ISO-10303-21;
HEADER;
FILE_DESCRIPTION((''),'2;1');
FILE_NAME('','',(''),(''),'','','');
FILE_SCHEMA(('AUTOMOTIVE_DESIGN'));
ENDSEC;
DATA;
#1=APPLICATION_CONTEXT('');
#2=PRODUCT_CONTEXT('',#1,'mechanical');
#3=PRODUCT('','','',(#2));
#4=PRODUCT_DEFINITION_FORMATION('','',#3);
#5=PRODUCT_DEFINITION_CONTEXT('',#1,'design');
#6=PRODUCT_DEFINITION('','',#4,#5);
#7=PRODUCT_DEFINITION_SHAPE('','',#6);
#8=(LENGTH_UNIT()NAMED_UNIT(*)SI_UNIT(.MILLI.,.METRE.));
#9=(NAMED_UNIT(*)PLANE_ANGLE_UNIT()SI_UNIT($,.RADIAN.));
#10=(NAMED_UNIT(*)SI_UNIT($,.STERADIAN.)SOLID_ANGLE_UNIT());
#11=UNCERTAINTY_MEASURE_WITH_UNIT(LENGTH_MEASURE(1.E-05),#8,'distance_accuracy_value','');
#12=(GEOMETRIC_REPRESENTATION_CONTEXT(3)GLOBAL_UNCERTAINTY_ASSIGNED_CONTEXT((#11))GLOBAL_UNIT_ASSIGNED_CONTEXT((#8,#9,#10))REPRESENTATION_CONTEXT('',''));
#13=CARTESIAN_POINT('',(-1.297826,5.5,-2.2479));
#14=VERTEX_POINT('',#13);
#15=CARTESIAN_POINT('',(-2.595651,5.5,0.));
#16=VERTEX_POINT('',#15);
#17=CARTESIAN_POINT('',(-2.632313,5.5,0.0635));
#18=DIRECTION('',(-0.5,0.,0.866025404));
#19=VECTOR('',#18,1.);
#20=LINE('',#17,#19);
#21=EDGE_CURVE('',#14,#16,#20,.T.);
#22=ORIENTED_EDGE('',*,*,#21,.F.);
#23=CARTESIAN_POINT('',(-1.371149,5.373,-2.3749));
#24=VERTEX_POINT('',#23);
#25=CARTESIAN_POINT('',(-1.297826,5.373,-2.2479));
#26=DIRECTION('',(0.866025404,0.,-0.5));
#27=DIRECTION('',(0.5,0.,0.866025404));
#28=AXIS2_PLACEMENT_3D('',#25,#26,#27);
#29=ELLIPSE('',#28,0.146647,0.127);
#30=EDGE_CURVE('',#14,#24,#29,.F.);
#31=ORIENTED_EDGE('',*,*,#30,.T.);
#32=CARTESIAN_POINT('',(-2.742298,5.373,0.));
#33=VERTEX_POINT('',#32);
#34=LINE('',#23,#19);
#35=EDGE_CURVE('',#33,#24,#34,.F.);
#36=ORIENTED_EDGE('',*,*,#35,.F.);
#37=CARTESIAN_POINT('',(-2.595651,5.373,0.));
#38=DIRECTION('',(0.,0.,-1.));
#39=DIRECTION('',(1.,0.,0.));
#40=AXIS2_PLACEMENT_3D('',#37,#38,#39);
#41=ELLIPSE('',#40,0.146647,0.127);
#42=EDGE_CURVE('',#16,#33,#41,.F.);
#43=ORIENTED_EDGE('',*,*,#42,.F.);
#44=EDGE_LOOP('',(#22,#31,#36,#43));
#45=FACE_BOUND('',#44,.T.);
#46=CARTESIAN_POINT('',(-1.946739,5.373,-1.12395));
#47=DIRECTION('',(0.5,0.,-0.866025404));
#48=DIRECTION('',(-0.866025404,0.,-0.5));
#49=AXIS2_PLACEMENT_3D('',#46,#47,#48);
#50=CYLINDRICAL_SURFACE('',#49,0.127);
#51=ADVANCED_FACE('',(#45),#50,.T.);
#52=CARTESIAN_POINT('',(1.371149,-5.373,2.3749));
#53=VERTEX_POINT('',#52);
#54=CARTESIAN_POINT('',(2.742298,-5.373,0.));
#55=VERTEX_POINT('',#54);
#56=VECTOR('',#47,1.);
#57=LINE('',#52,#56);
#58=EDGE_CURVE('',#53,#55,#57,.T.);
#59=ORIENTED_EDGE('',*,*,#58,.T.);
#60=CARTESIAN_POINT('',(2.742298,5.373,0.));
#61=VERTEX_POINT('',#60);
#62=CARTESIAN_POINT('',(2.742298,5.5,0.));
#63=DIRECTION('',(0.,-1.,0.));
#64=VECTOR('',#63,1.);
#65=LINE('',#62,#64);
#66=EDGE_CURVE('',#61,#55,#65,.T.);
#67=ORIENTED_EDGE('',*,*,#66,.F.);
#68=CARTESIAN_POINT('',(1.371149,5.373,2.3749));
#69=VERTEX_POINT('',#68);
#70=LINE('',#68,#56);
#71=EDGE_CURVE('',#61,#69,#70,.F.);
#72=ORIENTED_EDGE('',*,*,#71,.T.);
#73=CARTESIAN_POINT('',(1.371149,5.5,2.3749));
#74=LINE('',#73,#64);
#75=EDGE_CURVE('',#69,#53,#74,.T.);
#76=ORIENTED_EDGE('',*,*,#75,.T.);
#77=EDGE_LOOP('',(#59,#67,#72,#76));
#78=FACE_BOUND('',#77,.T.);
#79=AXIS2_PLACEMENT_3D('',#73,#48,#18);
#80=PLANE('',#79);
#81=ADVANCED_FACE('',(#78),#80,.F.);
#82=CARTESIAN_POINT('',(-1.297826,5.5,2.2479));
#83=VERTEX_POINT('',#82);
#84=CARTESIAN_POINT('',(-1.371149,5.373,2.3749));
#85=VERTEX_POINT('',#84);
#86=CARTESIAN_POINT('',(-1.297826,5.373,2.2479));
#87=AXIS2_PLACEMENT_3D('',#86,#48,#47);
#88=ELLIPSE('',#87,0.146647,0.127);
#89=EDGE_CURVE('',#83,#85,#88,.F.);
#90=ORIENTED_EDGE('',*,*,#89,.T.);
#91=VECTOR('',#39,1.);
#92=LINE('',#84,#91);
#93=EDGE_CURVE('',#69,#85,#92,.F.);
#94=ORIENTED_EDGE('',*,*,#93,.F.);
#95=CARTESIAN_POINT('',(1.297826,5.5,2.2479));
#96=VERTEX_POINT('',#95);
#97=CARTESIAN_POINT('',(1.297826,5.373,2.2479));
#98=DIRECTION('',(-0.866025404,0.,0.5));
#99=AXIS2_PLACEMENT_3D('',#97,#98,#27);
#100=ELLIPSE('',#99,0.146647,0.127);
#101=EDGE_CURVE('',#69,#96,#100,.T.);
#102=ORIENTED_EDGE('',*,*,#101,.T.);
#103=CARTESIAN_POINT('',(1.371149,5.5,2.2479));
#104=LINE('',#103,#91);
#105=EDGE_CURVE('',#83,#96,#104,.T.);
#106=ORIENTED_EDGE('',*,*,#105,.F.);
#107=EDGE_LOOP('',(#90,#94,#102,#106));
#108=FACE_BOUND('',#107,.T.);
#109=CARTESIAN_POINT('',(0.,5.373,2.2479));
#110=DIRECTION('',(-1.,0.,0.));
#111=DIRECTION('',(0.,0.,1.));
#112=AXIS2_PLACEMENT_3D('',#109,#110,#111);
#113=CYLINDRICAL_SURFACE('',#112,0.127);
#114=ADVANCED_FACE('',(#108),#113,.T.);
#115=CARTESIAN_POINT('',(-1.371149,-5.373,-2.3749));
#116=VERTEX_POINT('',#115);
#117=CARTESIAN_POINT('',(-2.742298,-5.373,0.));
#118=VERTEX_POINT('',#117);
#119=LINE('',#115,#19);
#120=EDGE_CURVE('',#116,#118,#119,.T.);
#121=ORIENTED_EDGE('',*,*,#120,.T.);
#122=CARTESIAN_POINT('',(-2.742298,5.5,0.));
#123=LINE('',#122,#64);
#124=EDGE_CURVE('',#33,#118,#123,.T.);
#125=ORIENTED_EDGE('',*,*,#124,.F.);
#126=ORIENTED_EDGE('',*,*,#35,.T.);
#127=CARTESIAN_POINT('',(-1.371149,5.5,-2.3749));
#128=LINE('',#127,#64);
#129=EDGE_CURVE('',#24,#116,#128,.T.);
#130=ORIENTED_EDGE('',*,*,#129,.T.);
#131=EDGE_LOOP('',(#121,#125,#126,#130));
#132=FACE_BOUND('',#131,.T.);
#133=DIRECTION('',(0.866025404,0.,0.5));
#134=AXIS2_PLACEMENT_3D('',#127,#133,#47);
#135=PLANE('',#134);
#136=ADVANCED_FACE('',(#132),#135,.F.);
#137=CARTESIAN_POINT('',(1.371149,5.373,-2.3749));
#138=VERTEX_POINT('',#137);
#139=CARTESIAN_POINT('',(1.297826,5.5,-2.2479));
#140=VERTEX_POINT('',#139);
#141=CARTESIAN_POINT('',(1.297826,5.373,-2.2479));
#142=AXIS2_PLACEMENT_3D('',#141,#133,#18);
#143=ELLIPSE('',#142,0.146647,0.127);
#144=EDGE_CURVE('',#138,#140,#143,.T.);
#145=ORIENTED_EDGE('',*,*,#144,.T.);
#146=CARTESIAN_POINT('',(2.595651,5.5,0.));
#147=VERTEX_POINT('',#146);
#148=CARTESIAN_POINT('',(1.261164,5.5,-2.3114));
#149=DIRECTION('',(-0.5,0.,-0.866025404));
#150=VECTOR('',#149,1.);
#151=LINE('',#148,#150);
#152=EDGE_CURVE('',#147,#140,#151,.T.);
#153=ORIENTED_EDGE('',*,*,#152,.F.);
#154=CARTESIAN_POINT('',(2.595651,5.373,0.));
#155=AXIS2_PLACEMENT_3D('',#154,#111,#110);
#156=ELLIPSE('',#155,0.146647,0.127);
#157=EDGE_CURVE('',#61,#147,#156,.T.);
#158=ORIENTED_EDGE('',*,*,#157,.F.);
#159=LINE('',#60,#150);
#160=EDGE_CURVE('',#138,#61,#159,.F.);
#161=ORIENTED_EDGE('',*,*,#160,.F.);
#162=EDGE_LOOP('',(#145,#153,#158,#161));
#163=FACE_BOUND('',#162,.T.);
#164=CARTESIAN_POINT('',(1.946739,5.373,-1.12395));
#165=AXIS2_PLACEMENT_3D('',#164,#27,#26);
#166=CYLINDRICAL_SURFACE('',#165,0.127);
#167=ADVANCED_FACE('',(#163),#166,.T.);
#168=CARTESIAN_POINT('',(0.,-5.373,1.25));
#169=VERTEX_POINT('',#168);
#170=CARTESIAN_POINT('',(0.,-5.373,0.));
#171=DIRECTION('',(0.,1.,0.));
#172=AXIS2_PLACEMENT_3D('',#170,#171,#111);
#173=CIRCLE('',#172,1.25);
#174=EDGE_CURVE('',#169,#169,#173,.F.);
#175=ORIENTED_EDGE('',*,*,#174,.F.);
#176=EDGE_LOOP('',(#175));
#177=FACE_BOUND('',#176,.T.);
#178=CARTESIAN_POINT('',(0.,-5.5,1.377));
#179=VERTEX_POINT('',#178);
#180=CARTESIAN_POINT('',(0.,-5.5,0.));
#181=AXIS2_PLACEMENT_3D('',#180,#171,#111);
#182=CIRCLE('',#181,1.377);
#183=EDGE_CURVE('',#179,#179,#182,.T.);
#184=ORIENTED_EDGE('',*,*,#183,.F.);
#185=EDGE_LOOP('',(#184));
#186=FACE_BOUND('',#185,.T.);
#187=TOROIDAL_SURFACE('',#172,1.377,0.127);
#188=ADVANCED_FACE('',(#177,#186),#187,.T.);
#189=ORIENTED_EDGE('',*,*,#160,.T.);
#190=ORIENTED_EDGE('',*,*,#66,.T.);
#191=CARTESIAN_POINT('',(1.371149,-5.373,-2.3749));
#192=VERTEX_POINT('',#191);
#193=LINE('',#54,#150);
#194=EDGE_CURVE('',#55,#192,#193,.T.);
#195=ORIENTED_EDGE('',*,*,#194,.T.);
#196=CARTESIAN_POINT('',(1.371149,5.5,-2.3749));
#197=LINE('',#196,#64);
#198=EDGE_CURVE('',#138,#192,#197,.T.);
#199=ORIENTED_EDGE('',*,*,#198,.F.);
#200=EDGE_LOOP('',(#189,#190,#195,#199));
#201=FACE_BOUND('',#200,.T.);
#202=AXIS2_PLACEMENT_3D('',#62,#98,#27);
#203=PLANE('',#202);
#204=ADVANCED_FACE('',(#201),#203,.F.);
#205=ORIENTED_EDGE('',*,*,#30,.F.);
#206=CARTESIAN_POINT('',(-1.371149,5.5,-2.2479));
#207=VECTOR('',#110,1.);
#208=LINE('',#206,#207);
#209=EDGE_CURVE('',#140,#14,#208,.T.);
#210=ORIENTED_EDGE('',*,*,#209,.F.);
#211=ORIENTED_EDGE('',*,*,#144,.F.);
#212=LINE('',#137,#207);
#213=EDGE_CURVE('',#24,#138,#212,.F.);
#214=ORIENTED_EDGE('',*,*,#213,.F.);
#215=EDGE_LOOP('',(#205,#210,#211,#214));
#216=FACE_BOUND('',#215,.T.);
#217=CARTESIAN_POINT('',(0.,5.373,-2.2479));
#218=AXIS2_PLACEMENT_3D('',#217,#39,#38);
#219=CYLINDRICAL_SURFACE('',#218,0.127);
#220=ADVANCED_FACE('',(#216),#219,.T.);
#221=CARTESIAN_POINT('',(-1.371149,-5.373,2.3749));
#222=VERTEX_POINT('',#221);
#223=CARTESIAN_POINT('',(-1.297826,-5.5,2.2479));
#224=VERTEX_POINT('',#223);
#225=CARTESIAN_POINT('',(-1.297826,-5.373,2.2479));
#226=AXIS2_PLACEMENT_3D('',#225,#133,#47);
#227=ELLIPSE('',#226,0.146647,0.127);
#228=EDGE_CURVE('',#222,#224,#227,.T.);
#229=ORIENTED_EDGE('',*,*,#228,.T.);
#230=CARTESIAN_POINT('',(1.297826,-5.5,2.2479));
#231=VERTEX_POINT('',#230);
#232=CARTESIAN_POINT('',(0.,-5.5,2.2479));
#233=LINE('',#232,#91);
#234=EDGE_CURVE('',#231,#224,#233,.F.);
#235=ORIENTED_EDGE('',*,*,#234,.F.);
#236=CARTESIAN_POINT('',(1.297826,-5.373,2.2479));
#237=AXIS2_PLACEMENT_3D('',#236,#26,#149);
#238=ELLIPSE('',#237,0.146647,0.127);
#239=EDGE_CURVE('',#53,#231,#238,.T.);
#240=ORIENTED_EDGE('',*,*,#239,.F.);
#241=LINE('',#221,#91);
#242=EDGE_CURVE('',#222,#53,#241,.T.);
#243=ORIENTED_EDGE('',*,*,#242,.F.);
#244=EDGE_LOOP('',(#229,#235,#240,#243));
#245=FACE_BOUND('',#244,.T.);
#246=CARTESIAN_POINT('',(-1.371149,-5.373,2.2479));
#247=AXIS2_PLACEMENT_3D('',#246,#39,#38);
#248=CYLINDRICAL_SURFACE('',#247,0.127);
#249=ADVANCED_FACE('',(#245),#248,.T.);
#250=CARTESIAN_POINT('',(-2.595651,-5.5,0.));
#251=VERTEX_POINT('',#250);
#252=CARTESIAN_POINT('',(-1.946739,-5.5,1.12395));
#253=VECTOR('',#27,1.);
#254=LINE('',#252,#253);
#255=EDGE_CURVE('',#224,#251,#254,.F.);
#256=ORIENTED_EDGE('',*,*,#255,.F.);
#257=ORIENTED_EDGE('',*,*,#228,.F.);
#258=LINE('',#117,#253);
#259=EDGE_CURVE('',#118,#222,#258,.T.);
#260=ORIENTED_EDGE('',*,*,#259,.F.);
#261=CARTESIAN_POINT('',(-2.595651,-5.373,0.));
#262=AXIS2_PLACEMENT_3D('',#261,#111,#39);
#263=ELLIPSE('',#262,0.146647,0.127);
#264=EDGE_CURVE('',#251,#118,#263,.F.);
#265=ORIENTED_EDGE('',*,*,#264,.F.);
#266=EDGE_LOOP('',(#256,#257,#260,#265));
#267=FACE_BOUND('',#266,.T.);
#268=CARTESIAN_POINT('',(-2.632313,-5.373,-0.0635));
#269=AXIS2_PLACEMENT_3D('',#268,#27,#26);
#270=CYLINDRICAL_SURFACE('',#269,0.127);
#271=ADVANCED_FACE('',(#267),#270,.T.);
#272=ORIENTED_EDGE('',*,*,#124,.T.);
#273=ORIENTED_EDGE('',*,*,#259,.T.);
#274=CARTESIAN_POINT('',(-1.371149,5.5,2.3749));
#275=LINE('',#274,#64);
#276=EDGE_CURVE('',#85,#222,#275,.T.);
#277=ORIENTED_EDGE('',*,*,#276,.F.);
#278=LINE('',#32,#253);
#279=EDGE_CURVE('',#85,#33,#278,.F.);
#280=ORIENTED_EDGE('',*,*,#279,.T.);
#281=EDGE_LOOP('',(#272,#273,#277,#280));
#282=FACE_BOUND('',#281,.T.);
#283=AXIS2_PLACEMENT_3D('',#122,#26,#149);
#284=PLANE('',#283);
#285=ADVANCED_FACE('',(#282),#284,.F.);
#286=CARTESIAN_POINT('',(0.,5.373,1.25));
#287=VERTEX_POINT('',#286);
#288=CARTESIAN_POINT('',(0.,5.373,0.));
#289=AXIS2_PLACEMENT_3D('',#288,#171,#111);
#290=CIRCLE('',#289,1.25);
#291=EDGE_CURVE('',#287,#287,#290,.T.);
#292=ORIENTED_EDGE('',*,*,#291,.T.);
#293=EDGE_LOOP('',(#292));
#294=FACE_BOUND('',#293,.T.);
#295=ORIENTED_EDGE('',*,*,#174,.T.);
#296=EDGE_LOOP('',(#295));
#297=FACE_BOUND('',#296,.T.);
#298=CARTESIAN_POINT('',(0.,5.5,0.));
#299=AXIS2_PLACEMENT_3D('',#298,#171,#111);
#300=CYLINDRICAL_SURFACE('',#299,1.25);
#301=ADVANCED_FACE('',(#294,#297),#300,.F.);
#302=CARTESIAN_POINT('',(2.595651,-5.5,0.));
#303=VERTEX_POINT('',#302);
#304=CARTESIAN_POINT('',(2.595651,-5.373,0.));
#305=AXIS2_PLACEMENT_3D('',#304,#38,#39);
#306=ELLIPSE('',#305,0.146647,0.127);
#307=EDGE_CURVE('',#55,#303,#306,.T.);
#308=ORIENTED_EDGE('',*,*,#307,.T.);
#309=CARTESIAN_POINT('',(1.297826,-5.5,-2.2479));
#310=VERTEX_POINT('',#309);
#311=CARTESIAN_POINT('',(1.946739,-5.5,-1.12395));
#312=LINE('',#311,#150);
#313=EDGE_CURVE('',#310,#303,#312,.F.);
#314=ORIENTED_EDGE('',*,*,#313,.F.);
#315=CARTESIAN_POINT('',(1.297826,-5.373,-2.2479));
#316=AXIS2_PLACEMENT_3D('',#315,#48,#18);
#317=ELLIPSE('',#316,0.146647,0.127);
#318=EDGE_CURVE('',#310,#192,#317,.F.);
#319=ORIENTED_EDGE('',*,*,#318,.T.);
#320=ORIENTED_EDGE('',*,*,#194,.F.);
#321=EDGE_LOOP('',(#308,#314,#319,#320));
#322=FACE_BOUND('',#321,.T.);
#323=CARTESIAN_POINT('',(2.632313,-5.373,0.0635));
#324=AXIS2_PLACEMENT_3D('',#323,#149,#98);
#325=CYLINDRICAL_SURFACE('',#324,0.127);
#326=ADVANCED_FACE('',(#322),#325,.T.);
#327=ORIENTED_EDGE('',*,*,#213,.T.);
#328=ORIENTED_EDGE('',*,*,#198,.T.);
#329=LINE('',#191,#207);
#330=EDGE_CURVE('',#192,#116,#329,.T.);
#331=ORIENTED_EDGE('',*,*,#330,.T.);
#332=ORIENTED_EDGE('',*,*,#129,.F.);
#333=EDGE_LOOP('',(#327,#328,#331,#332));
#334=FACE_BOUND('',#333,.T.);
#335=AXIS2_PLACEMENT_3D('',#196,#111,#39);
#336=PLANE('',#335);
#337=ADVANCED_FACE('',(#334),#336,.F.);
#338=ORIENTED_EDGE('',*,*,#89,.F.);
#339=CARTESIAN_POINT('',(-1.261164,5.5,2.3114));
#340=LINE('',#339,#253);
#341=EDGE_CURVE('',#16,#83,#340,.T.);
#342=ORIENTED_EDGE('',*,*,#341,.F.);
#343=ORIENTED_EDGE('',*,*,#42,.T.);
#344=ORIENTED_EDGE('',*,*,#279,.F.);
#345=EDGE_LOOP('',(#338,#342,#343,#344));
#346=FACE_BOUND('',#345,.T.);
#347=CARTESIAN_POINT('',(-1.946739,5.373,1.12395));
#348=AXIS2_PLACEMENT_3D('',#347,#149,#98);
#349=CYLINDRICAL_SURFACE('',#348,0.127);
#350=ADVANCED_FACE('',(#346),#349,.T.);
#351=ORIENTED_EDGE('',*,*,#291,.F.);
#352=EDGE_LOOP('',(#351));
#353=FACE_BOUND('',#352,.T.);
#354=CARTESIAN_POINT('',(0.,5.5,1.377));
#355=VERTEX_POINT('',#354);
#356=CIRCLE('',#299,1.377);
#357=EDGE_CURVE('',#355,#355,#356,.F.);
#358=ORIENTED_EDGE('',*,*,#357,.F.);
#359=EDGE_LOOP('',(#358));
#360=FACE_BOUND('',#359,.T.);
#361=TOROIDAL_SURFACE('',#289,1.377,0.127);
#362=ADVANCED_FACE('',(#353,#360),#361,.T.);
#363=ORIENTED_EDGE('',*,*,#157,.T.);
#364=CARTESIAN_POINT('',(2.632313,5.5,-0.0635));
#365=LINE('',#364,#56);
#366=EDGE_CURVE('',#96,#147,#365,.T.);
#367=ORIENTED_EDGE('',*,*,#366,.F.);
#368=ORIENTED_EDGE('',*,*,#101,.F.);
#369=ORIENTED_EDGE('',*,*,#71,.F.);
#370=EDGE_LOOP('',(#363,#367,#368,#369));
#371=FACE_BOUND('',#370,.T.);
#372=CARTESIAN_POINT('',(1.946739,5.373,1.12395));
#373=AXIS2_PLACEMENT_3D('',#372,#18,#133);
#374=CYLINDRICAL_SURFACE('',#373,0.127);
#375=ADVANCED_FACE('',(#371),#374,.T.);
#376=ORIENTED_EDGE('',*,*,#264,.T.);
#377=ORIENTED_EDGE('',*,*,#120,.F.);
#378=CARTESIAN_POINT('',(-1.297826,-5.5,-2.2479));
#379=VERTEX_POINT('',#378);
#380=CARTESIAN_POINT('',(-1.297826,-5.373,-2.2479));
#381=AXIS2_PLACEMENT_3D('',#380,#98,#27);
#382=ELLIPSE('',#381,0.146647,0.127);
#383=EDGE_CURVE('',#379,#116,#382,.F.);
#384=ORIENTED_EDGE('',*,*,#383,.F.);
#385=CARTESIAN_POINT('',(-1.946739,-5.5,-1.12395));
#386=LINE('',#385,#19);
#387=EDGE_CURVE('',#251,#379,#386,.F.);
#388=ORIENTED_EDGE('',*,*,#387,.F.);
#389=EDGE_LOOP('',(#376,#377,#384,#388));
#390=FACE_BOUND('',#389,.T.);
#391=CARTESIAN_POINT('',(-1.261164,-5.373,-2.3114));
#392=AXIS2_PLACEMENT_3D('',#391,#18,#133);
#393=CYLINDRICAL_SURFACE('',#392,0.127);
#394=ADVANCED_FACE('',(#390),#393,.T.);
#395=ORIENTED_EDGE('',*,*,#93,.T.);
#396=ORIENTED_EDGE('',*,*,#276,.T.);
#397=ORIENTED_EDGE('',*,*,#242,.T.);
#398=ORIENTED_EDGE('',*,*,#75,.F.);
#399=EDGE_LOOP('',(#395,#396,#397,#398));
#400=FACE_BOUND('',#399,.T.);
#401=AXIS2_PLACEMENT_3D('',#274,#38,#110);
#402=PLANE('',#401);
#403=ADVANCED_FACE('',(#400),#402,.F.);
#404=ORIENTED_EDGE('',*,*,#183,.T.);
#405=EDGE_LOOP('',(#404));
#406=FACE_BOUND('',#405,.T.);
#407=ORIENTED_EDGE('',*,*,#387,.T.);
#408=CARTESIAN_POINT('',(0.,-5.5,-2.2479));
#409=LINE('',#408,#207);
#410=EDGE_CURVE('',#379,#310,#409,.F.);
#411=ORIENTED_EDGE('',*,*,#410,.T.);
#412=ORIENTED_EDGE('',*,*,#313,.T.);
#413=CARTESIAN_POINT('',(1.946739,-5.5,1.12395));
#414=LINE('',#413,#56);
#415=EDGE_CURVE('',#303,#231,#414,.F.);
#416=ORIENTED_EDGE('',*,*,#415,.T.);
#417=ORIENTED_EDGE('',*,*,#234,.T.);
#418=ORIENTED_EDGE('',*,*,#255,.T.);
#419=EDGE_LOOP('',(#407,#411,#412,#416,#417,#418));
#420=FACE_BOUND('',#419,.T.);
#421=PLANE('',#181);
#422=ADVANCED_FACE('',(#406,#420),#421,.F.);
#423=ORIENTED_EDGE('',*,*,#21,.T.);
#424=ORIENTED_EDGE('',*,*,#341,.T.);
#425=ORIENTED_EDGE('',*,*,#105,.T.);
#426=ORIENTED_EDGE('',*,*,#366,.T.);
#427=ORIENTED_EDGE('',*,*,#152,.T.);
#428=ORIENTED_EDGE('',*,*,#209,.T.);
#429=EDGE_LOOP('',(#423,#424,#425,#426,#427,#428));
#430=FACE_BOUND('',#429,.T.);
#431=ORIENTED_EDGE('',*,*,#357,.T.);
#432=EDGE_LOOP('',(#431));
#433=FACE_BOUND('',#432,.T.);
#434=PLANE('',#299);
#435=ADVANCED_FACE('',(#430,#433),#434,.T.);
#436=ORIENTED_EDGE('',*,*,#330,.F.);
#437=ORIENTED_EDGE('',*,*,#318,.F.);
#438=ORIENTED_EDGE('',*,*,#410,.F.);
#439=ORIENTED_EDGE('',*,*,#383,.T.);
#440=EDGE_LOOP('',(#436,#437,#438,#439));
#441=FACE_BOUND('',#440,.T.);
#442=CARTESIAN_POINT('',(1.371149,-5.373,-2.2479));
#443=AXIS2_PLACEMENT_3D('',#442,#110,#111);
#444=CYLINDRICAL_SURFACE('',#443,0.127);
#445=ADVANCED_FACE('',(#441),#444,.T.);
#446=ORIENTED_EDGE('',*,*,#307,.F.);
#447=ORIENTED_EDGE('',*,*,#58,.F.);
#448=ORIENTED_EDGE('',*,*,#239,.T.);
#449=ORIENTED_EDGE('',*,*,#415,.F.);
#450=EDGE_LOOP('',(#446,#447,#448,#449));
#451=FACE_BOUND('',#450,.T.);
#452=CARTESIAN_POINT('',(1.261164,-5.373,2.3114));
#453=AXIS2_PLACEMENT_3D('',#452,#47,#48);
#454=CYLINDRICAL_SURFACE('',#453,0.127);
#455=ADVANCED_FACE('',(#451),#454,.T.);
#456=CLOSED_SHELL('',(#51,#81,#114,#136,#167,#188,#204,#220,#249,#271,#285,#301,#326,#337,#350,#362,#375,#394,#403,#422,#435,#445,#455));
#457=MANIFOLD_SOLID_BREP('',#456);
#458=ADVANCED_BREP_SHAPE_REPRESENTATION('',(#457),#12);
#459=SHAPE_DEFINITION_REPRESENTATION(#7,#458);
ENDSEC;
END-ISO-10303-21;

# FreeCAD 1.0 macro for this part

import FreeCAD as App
import Part
import Sketcher
from FreeCAD import Vector
Q = App.Units.Quantity


def edges_at(feature, points):
    """Names of the edges that pass closest to the given points."""
    edges = feature.Shape.Edges
    near = lambda p: min(range(len(edges)), key=lambda i: edges[i].distToShape(Part.Vertex(*p))[0])
    return sorted({f"Edge{near(p) + 1}" for p in points})

doc = App.newDocument("Part")
body = doc.addObject("PartDesign::Body", "Body")

# Sketch on XZ plane
sketch1 = doc.addObject("Sketcher::SketchObject", "Sketch")
body.addObject(sketch1)
sketch1.AttachmentSupport = (doc.XZ_Plane, [""])
sketch1.MapMode = "FlatFace"
sketch1.addGeometry(Part.LineSegment(Vector(2.742298, 0, 0), Vector(1.371149, -2.3749, 0)), False)
sketch1.addGeometry(Part.LineSegment(Vector(1.371149, -2.3749, 0), Vector(-1.371149, -2.3749, 0)), False)
sketch1.addGeometry(Part.LineSegment(Vector(-1.371149, -2.3749, 0), Vector(-2.742298, 0, 0)), False)
sketch1.addGeometry(Part.LineSegment(Vector(-2.742298, 0, 0), Vector(-1.371149, 2.3749, 0)), False)
sketch1.addGeometry(Part.LineSegment(Vector(-1.371149, 2.3749, 0), Vector(1.371149, 2.3749, 0)), False)
sketch1.addGeometry(Part.LineSegment(Vector(1.371149, 2.3749, 0), Vector(2.742298, 0, 0)), False)
sketch1.addConstraint(Sketcher.Constraint("Coincident", 0, 2, 1, 1))
sketch1.addConstraint(Sketcher.Constraint("Coincident", 1, 2, 2, 1))
sketch1.addConstraint(Sketcher.Constraint("Coincident", 2, 2, 3, 1))
sketch1.addConstraint(Sketcher.Constraint("Coincident", 3, 2, 4, 1))
sketch1.addConstraint(Sketcher.Constraint("Coincident", 4, 2, 5, 1))
sketch1.addConstraint(Sketcher.Constraint("Coincident", 5, 2, 0, 1))
sketch1.addConstraint(Sketcher.Constraint("Horizontal", 1))
sketch1.addConstraint(Sketcher.Constraint("Horizontal", 4))
sketch1.addConstraint(Sketcher.Constraint("Symmetric", 0, 2, 3, 2, -1, 1))
sketch1.addConstraint(Sketcher.Constraint("Symmetric", 2, 2, 5, 2, -1, 1))
sketch1.addConstraint(Sketcher.Constraint("PointOnObject", 2, 2, -1))
sketch1.addConstraint(Sketcher.Constraint("Parallel", 2, 5))
sketch1.addConstraint(Sketcher.Constraint("Vertical", 1, 2, 3, 2))
sketch1.addConstraint(Sketcher.Constraint("Angle", 0, Q("-120 deg")))
sketch1.addConstraint(Sketcher.Constraint("DistanceX", 1, 2, 1, 1, 2.742298))
sketch1.addConstraint(Sketcher.Constraint("Distance", 0, 2.742298))
pad1 = doc.addObject("PartDesign::Pad", "Pad")
body.addObject(pad1)
pad1.Profile = sketch1
pad1.Length = 11
pad1.Midplane = True

# Sketch on XZ plane
sketch2 = doc.addObject("Sketcher::SketchObject", "Sketch001")
body.addObject(sketch2)
sketch2.AttachmentSupport = (doc.XZ_Plane, [""])
sketch2.MapMode = "FlatFace"
sketch2.AttachmentOffset = App.Placement(Vector(0, 0, -5.5), App.Rotation())
sketch2.addGeometry(Part.Circle(Vector(0, 0, 0), Vector(0, 0, 1), 1.25), False)
sketch2.addConstraint(Sketcher.Constraint("Coincident", 0, 3, -1, 1))
sketch2.addConstraint(Sketcher.Constraint("Diameter", 0, 2.5))
doc.recompute()
hole = doc.addObject("PartDesign::Hole", "Hole")
body.addObject(hole)
hole.Profile = sketch2
hole.ThreadType = "None"
hole.Diameter = 2.5
hole.DepthType = "ThroughAll"
hole.Reversed = True
doc.recompute()

fillet = doc.addObject("PartDesign::Fillet", "Fillet")
body.addObject(fillet)
fillet.Base = (hole, edges_at(hole, [
    (0, 5.5, -2.375),
    (-2.057, 5.5, -1.187),
    (-2.057, 5.5, 1.187),
    (0, 5.5, 2.375),
    (1.25, 5.5, 0),
    (1.25, -5.5, 0),
    (2.057, 5.5, 1.187),
    (0, -5.5, 2.375),
    (-2.057, -5.5, 1.187),
    (-2.057, -5.5, -1.187),
    (2.057, 5.5, -1.187),
    (0, -5.5, -2.375),
    (2.057, -5.5, -1.187),
    (2.057, -5.5, 1.187),
]))
fillet.Radius = 0.127

doc.recompute()
